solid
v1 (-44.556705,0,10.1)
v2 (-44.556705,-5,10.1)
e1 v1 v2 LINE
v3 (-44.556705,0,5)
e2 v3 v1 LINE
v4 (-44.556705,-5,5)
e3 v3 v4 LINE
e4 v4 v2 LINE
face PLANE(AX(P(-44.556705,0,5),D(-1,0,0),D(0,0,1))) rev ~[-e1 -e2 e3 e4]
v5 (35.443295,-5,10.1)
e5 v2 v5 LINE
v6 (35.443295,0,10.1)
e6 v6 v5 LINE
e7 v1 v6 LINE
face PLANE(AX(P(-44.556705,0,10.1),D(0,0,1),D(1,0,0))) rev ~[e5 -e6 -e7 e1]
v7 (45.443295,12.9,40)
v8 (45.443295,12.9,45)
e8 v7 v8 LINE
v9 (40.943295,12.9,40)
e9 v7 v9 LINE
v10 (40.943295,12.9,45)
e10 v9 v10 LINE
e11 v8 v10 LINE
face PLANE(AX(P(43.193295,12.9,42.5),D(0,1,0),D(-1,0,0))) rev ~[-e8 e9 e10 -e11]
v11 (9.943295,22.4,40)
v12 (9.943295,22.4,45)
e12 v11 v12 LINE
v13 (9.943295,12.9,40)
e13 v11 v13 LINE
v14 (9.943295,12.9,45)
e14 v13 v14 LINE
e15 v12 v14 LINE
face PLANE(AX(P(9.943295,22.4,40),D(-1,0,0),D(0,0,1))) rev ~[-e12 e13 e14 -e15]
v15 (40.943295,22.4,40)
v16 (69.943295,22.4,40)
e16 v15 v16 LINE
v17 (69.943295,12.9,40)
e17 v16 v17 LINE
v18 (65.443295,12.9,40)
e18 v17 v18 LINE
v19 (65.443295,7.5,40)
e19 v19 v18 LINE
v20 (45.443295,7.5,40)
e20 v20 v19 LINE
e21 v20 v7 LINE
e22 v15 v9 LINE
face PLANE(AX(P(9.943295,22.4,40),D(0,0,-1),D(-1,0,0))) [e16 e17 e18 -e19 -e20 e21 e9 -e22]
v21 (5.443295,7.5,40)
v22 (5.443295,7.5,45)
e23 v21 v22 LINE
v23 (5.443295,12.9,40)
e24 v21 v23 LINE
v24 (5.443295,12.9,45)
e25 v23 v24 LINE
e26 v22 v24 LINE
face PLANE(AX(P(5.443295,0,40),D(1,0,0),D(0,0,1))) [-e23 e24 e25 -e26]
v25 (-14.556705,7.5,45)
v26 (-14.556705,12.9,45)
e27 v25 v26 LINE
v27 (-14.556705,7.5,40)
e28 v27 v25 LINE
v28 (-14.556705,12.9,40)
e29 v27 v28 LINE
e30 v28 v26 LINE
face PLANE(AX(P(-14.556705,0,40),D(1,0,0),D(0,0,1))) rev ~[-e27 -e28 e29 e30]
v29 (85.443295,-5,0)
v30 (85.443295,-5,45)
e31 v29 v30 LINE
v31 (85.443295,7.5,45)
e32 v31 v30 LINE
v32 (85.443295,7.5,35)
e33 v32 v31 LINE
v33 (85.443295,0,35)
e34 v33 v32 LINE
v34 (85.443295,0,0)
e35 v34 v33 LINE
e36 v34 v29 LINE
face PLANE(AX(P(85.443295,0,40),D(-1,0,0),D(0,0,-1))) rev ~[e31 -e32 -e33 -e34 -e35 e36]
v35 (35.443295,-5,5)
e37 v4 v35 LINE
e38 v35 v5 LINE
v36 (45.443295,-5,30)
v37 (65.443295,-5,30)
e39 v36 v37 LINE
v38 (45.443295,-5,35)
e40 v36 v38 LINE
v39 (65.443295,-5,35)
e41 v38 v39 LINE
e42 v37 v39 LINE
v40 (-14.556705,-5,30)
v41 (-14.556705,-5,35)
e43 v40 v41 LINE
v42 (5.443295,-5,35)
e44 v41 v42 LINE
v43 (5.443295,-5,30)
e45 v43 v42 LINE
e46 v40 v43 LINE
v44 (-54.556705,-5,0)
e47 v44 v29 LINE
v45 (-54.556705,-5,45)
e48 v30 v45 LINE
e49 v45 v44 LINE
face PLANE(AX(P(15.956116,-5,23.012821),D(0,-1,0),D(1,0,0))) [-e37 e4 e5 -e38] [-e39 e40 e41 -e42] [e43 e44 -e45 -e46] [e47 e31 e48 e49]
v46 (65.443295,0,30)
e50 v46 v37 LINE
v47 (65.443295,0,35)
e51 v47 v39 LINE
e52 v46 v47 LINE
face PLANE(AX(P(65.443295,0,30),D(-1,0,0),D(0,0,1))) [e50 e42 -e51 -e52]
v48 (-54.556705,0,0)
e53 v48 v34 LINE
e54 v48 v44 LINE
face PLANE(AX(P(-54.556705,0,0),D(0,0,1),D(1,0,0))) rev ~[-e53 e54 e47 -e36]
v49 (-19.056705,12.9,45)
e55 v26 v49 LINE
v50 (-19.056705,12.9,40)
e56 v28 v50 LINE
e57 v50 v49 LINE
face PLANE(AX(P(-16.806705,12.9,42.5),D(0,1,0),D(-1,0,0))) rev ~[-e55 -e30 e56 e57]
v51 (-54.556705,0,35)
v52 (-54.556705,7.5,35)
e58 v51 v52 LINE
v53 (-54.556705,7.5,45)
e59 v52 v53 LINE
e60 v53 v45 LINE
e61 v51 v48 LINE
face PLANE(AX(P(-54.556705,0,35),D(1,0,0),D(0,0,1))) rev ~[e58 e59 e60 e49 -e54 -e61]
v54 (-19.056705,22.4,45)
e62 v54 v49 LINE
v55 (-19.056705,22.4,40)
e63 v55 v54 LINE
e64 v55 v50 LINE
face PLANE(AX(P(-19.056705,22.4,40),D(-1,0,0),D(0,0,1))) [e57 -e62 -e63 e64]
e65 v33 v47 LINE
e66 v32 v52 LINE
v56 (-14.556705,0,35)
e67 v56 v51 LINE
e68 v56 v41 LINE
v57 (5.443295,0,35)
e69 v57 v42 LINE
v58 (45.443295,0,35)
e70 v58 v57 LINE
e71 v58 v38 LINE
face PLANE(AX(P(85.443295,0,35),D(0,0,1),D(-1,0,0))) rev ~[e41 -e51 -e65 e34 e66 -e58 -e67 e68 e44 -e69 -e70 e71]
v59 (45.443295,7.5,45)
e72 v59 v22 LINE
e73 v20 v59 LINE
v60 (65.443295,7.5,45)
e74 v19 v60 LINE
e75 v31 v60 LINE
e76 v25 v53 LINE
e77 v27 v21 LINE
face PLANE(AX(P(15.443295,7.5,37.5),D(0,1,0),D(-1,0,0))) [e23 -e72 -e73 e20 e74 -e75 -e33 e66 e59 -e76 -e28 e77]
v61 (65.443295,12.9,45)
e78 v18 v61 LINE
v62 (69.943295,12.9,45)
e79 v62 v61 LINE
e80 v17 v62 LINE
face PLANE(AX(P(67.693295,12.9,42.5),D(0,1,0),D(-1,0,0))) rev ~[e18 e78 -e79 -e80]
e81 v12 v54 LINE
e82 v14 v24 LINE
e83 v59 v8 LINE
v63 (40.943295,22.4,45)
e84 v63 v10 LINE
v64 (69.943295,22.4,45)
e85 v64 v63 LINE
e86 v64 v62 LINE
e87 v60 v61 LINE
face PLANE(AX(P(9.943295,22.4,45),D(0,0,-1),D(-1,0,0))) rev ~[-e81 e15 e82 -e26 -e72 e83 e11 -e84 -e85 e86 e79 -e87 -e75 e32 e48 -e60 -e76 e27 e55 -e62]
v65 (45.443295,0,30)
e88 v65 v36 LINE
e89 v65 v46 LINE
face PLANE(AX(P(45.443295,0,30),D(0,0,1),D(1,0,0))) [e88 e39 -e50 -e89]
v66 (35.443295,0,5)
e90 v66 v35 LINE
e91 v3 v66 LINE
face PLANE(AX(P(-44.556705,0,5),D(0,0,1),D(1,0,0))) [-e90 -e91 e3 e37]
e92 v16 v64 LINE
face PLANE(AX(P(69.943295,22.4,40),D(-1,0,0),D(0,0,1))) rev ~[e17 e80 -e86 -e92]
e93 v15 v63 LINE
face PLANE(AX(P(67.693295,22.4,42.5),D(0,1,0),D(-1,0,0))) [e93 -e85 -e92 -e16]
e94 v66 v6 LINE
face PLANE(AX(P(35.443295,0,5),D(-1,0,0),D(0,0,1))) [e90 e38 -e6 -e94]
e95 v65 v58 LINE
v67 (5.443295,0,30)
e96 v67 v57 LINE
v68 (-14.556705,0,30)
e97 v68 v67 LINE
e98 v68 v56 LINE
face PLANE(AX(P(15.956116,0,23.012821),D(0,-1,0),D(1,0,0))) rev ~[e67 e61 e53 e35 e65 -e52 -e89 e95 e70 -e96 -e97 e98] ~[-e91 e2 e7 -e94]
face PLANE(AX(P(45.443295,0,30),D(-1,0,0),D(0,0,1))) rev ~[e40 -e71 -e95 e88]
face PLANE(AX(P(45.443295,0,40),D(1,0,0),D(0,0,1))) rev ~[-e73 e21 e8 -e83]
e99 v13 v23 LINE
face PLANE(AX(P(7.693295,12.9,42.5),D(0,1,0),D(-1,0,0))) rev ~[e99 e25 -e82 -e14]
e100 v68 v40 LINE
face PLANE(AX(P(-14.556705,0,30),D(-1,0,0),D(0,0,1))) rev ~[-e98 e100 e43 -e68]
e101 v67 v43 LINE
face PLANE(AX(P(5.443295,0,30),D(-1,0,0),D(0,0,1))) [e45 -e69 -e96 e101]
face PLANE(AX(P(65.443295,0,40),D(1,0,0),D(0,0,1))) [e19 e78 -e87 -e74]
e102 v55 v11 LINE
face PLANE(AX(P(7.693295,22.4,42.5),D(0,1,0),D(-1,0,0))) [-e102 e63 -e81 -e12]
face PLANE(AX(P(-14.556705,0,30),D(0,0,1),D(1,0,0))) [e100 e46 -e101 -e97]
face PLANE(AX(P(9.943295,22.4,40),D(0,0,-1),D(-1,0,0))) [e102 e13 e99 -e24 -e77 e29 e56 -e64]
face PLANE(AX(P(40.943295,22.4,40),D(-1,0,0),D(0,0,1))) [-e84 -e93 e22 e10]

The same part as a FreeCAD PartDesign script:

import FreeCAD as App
import Part
import Sketcher
from FreeCAD import Vector
Q = App.Units.Quantity

doc = App.newDocument("Part")
body = doc.addObject("PartDesign::Body", "Body")

# Sketch on XZ plane
sketch1 = body.newObject("Sketcher::SketchObject", "Sketch")
sketch1.AttachmentSupport = (doc.getObject("XZ_Plane"), [""])
sketch1.MapMode = "FlatFace"
sketch1.addGeometry([
    Part.LineSegment(Vector(-55, 45, 0), Vector(-55, 0, 0)),  # 0
    Part.LineSegment(Vector(-55, 0, 0), Vector(85, 0, 0)),  # 1
    Part.LineSegment(Vector(85, 0, 0), Vector(85, 45, 0)),  # 2
    Part.LineSegment(Vector(85, 45, 0), Vector(-55, 45, 0)),  # 3
    Part.LineSegment(Vector(35, 5, 0), Vector(-45, 5, 0)),  # 4
    Part.LineSegment(Vector(-45, 5, 0), Vector(-45, 10, 0)),  # 5
    Part.LineSegment(Vector(-45, 10, 0), Vector(35, 10, 0)),  # 6
    Part.LineSegment(Vector(35, 10, 0), Vector(35, 5, 0)),  # 7
    Part.LineSegment(Vector(5, 30, 0), Vector(-15, 30, 0)),  # 8
    Part.LineSegment(Vector(-15, 30, 0), Vector(-15, 35, 0)),  # 9
    Part.LineSegment(Vector(-15, 35, 0), Vector(5, 35, 0)),  # 10
    Part.LineSegment(Vector(5, 35, 0), Vector(5, 30, 0)),  # 11
    Part.LineSegment(Vector(65, 30, 0), Vector(45, 30, 0)),  # 12
    Part.LineSegment(Vector(45, 30, 0), Vector(45, 35, 0)),  # 13
    Part.LineSegment(Vector(45, 35, 0), Vector(65, 35, 0)),  # 14
    Part.LineSegment(Vector(65, 35, 0), Vector(65, 30, 0)),  # 15
], False)
sketch1.addConstraint([
    Sketcher.Constraint("Coincident", 0, 2, 1, 1),
    Sketcher.Constraint("Coincident", 1, 2, 2, 1),
    Sketcher.Constraint("Coincident", 2, 2, 3, 1),
    Sketcher.Constraint("Coincident", 3, 2, 0, 1),
    Sketcher.Constraint("Coincident", 4, 2, 5, 1),
    Sketcher.Constraint("Coincident", 5, 2, 6, 1),
    Sketcher.Constraint("Coincident", 6, 2, 7, 1),
    Sketcher.Constraint("Coincident", 7, 2, 4, 1),
    Sketcher.Constraint("Coincident", 8, 2, 9, 1),
    Sketcher.Constraint("Coincident", 9, 2, 10, 1),
    Sketcher.Constraint("Coincident", 10, 2, 11, 1),
    Sketcher.Constraint("Coincident", 11, 2, 8, 1),
    Sketcher.Constraint("Coincident", 12, 2, 13, 1),
    Sketcher.Constraint("Coincident", 13, 2, 14, 1),
    Sketcher.Constraint("Coincident", 14, 2, 15, 1),
    Sketcher.Constraint("Coincident", 15, 2, 12, 1),
    Sketcher.Constraint("Vertical", 0),
    Sketcher.Constraint("Horizontal", 1),
    Sketcher.Constraint("Vertical", 2),
    Sketcher.Constraint("Horizontal", 3),
    Sketcher.Constraint("Horizontal", 4),
    Sketcher.Constraint("Vertical", 5),
    Sketcher.Constraint("Horizontal", 6),
    Sketcher.Constraint("Vertical", 7),
    Sketcher.Constraint("Horizontal", 8),
    Sketcher.Constraint("Vertical", 9),
    Sketcher.Constraint("Horizontal", 10),
    Sketcher.Constraint("Vertical", 11),
    Sketcher.Constraint("Horizontal", 12),
    Sketcher.Constraint("Vertical", 13),
    Sketcher.Constraint("Horizontal", 14),
    Sketcher.Constraint("Vertical", 15),
    Sketcher.Constraint("PointOnObject", 0, 2, -1),
    Sketcher.Constraint("Horizontal", 11, 2, 12, 2),
    Sketcher.Constraint("Horizontal", 10, 2, 13, 2),
    Sketcher.Constraint("Equal", 10, 12),
    Sketcher.Constraint("DistanceX", 1, 1, 1, 2, Q("140 mm")),
    Sketcher.Constraint("DistanceX", 4, 2, 4, 1, Q("80 mm")),
    Sketcher.Constraint("DistanceX", 8, 2, 8, 1, Q("20 mm")),
    Sketcher.Constraint("DistanceY", 0, 2, 0, 1, Q("45 mm")),
    Sketcher.Constraint("DistanceY", 9, 1, 9, 2, Q("5 mm")),
    Sketcher.Constraint("DistanceY", 5, 1, 5, 2, Q("5.1 mm")),
    Sketcher.Constraint("DistanceY", -1, 1, 4, 2, Q("5 mm")),
    Sketcher.Constraint("DistanceY", -1, 1, 8, 2, Q("30 mm")),
    Sketcher.Constraint("DistanceX", 0, 2, 4, 2, Q("10 mm")),
    Sketcher.Constraint("DistanceX", 5, 2, 8, 2, Q("30 mm")),
    Sketcher.Constraint("DistanceX", 6, 2, 12, 2, Q("10 mm")),
    Sketcher.Constraint("DistanceX", 0, 2, -1, 1, Q("54.556705 mm")),
])
pad1 = body.newObject("PartDesign::Pad", "Pad")
pad1.Profile = sketch1
pad1.Length = 5

# Sketch on XZ plane
sketch2 = body.newObject("Sketcher::SketchObject", "Sketch001")
sketch2.AttachmentSupport = (doc.getObject("XZ_Plane"), [""])
sketch2.MapMode = "FlatFace"
sketch2.addGeometry([
    Part.LineSegment(Vector(85, 45, 0), Vector(85, 40, 0)),  # 0
    Part.LineSegment(Vector(85, 40, 0), Vector(65, 40, 0)),  # 1
    Part.LineSegment(Vector(65, 40, 0), Vector(65, 45, 0)),  # 2
    Part.LineSegment(Vector(65, 45, 0), Vector(85, 45, 0)),  # 3
    Part.LineSegment(Vector(45, 45, 0), Vector(45, 40, 0)),  # 4
    Part.LineSegment(Vector(45, 40, 0), Vector(5, 40, 0)),  # 5
    Part.LineSegment(Vector(5, 40, 0), Vector(5, 45, 0)),  # 6
    Part.LineSegment(Vector(5, 45, 0), Vector(45, 45, 0)),  # 7
    Part.LineSegment(Vector(-15, 45, 0), Vector(-15, 40, 0)),  # 8
    Part.LineSegment(Vector(-15, 40, 0), Vector(-55, 40, 0)),  # 9
    Part.LineSegment(Vector(-55, 40, 0), Vector(-55, 45, 0)),  # 10
    Part.LineSegment(Vector(-55, 45, 0), Vector(-15, 45, 0)),  # 11
], False)
sketch2.addConstraint([
    Sketcher.Constraint("Coincident", 0, 2, 1, 1),
    Sketcher.Constraint("Coincident", 1, 2, 2, 1),
    Sketcher.Constraint("Coincident", 2, 2, 3, 1),
    Sketcher.Constraint("Coincident", 3, 2, 0, 1),
    Sketcher.Constraint("Coincident", 4, 2, 5, 1),
    Sketcher.Constraint("Coincident", 5, 2, 6, 1),
    Sketcher.Constraint("Coincident", 6, 2, 7, 1),
    Sketcher.Constraint("Coincident", 7, 2, 4, 1),
    Sketcher.Constraint("Coincident", 8, 2, 9, 1),
    Sketcher.Constraint("Coincident", 9, 2, 10, 1),
    Sketcher.Constraint("Coincident", 10, 2, 11, 1),
    Sketcher.Constraint("Coincident", 11, 2, 8, 1),
    Sketcher.Constraint("Vertical", 0),
    Sketcher.Constraint("Horizontal", 1),
    Sketcher.Constraint("Vertical", 2),
    Sketcher.Constraint("Horizontal", 3),
    Sketcher.Constraint("Vertical", 4),
    Sketcher.Constraint("Horizontal", 5),
    Sketcher.Constraint("Vertical", 6),
    Sketcher.Constraint("Horizontal", 7),
    Sketcher.Constraint("Vertical", 8),
    Sketcher.Constraint("Horizontal", 9),
    Sketcher.Constraint("Vertical", 10),
    Sketcher.Constraint("Horizontal", 11),
    Sketcher.Constraint("Horizontal", 1, 2, 4, 2),
    Sketcher.Constraint("Horizontal", 3, 2, 6, 2),
    Sketcher.Constraint("Horizontal", 5, 2, 8, 2),
    Sketcher.Constraint("Horizontal", 7, 2, 10, 2),
    Sketcher.Constraint("Equal", 7, 9),
    Sketcher.Constraint("DistanceX", 1, 2, 1, 1, Q("20 mm")),
    Sketcher.Constraint("DistanceX", 5, 2, 5, 1, Q("40 mm")),
    Sketcher.Constraint("DistanceY", 0, 2, 0, 1, Q("5 mm")),
    Sketcher.Constraint("DistanceY", -1, 1, 0, 2, Q("40 mm")),
    Sketcher.Constraint("DistanceX", 4, 2, 1, 2, Q("20 mm")),
    Sketcher.Constraint("DistanceX", 8, 2, 5, 2, Q("20 mm")),
    Sketcher.Constraint("DistanceX", -1, 1, 0, 2, Q("85.443295 mm")),
])
pad2 = body.newObject("PartDesign::Pad", "Pad001")
pad2.Profile = sketch2
pad2.Length = 7.5
pad2.Reversed = True

# Sketch on XZ plane
sketch3 = body.newObject("Sketcher::SketchObject", "Sketch002")
sketch3.AttachmentSupport = (doc.getObject("XZ_Plane"), [""])
sketch3.MapMode = "FlatFace"
sketch3.addGeometry([
    Part.LineSegment(Vector(65, 45, 0), Vector(65, 40, 0)),  # 0
    Part.LineSegment(Vector(65, 40, 0), Vector(45, 40, 0)),  # 1
    Part.LineSegment(Vector(45, 40, 0), Vector(45, 45, 0)),  # 2
    Part.LineSegment(Vector(45, 45, 0), Vector(65, 45, 0)),  # 3
    Part.LineSegment(Vector(5, 45, 0), Vector(5, 40, 0)),  # 4
    Part.LineSegment(Vector(5, 40, 0), Vector(-15, 40, 0)),  # 5
    Part.LineSegment(Vector(-15, 40, 0), Vector(-15, 45, 0)),  # 6
    Part.LineSegment(Vector(-15, 45, 0), Vector(5, 45, 0)),  # 7
], False)
sketch3.addConstraint([
    Sketcher.Constraint("Coincident", 0, 2, 1, 1),
    Sketcher.Constraint("Coincident", 1, 2, 2, 1),
    Sketcher.Constraint("Coincident", 2, 2, 3, 1),
    Sketcher.Constraint("Coincident", 3, 2, 0, 1),
    Sketcher.Constraint("Coincident", 4, 2, 5, 1),
    Sketcher.Constraint("Coincident", 5, 2, 6, 1),
    Sketcher.Constraint("Coincident", 6, 2, 7, 1),
    Sketcher.Constraint("Coincident", 7, 2, 4, 1),
    Sketcher.Constraint("Vertical", 0),
    Sketcher.Constraint("Horizontal", 1),
    Sketcher.Constraint("Vertical", 2),
    Sketcher.Constraint("Horizontal", 3),
    Sketcher.Constraint("Vertical", 4),
    Sketcher.Constraint("Horizontal", 5),
    Sketcher.Constraint("Vertical", 6),
    Sketcher.Constraint("Horizontal", 7),
    Sketcher.Constraint("Horizontal", 1, 2, 4, 2),
    Sketcher.Constraint("Horizontal", 3, 2, 6, 2),
    Sketcher.Constraint("Equal", 3, 5),
    Sketcher.Constraint("DistanceX", 1, 2, 1, 1, Q("20 mm")),
    Sketcher.Constraint("DistanceY", 0, 2, 0, 1, Q("5 mm")),
    Sketcher.Constraint("DistanceY", -1, 1, 0, 2, Q("40 mm")),
    Sketcher.Constraint("DistanceX", 4, 2, 1, 2, Q("40 mm")),
    Sketcher.Constraint("DistanceX", -1, 1, 0, 2, Q("65.443295 mm")),
])
pad3 = body.newObject("PartDesign::Pad", "Pad002")
pad3.Profile = sketch3
pad3.Length = 22.4
pad3.Reversed = True

# Sketch on XZ plane
sketch4 = body.newObject("Sketcher::SketchObject", "Sketch003")
sketch4.AttachmentSupport = (doc.getObject("XZ_Plane"), [""])
sketch4.MapMode = "FlatFace"
sketch4.AttachmentOffset = App.Placement(Vector(0, 0, -22.4), App.Rotation())
sketch4.addGeometry([
    Part.LineSegment(Vector(69.9, 45, 0), Vector(69.9, 40, 0)),  # 0
    Part.LineSegment(Vector(69.9, 40, 0), Vector(65.4, 40, 0)),  # 1
    Part.LineSegment(Vector(65.4, 40, 0), Vector(65.4, 45, 0)),  # 2
    Part.LineSegment(Vector(65.4, 45, 0), Vector(69.9, 45, 0)),  # 3
    Part.LineSegment(Vector(45.4, 45, 0), Vector(45.4, 40, 0)),  # 4
    Part.LineSegment(Vector(45.4, 40, 0), Vector(40.9, 40, 0)),  # 5
    Part.LineSegment(Vector(40.9, 40, 0), Vector(40.9, 45, 0)),  # 6
    Part.LineSegment(Vector(40.9, 45, 0), Vector(45.4, 45, 0)),  # 7
], False)
sketch4.addConstraint([
    Sketcher.Constraint("Coincident", 0, 2, 1, 1),
    Sketcher.Constraint("Coincident", 1, 2, 2, 1),
    Sketcher.Constraint("Coincident", 2, 2, 3, 1),
    Sketcher.Constraint("Coincident", 3, 2, 0, 1),
    Sketcher.Constraint("Coincident", 4, 2, 5, 1),
    Sketcher.Constraint("Coincident", 5, 2, 6, 1),
    Sketcher.Constraint("Coincident", 6, 2, 7, 1),
    Sketcher.Constraint("Coincident", 7, 2, 4, 1),
    Sketcher.Constraint("Vertical", 0),
    Sketcher.Constraint("Horizontal", 1),
    Sketcher.Constraint("Vertical", 2),
    Sketcher.Constraint("Horizontal", 3),
    Sketcher.Constraint("Vertical", 4),
    Sketcher.Constraint("Horizontal", 5),
    Sketcher.Constraint("Vertical", 6),
    Sketcher.Constraint("Horizontal", 7),
    Sketcher.Constraint("Horizontal", 1, 2, 4, 2),
    Sketcher.Constraint("Horizontal", 3, 2, 6, 2),
    Sketcher.Constraint("Equal", 3, 5),
    Sketcher.Constraint("DistanceY", 0, 2, 0, 1, Q("5 mm")),
    Sketcher.Constraint("DistanceX", 1, 2, 1, 1, Q("4.5 mm")),
    Sketcher.Constraint("DistanceY", -1, 1, 0, 2, Q("40 mm")),
    Sketcher.Constraint("DistanceX", 4, 2, 1, 2, Q("20 mm")),
    Sketcher.Constraint("DistanceX", -1, 1, 0, 2, Q("69.943295 mm")),
])
pad4 = body.newObject("PartDesign::Pad", "Pad003")
pad4.Profile = sketch4
pad4.Length = 9.5

# Sketch on XZ plane
sketch5 = body.newObject("Sketcher::SketchObject", "Sketch004")
sketch5.AttachmentSupport = (doc.getObject("XZ_Plane"), [""])
sketch5.MapMode = "FlatFace"
sketch5.AttachmentOffset = App.Placement(Vector(0, 0, -22.4), App.Rotation())
sketch5.addGeometry([
    Part.LineSegment(Vector(9.9, 45, 0), Vector(9.9, 40, 0)),  # 0
    Part.LineSegment(Vector(9.9, 40, 0), Vector(5.4, 40, 0)),  # 1
    Part.LineSegment(Vector(5.4, 40, 0), Vector(5.4, 45, 0)),  # 2
    Part.LineSegment(Vector(5.4, 45, 0), Vector(9.9, 45, 0)),  # 3
    Part.LineSegment(Vector(-14.6, 45, 0), Vector(-14.6, 40, 0)),  # 4
    Part.LineSegment(Vector(-14.6, 40, 0), Vector(-19.1, 40, 0)),  # 5
    Part.LineSegment(Vector(-19.1, 40, 0), Vector(-19.1, 45, 0)),  # 6
    Part.LineSegment(Vector(-19.1, 45, 0), Vector(-14.6, 45, 0)),  # 7
], False)
sketch5.addConstraint([
    Sketcher.Constraint("Coincident", 0, 2, 1, 1),
    Sketcher.Constraint("Coincident", 1, 2, 2, 1),
    Sketcher.Constraint("Coincident", 2, 2, 3, 1),
    Sketcher.Constraint("Coincident", 3, 2, 0, 1),
    Sketcher.Constraint("Coincident", 4, 2, 5, 1),
    Sketcher.Constraint("Coincident", 5, 2, 6, 1),
    Sketcher.Constraint("Coincident", 6, 2, 7, 1),
    Sketcher.Constraint("Coincident", 7, 2, 4, 1),
    Sketcher.Constraint("Vertical", 0),
    Sketcher.Constraint("Horizontal", 1),
    Sketcher.Constraint("Vertical", 2),
    Sketcher.Constraint("Horizontal", 3),
    Sketcher.Constraint("Vertical", 4),
    Sketcher.Constraint("Horizontal", 5),
    Sketcher.Constraint("Vertical", 6),
    Sketcher.Constraint("Horizontal", 7),
    Sketcher.Constraint("Horizontal", 1, 2, 4, 2),
    Sketcher.Constraint("Horizontal", 3, 2, 6, 2),
    Sketcher.Constraint("Equal", 3, 5),
    Sketcher.Constraint("DistanceY", 0, 2, 0, 1, Q("5 mm")),
    Sketcher.Constraint("DistanceX", 1, 2, 1, 1, Q("4.5 mm")),
    Sketcher.Constraint("DistanceY", -1, 1, 0, 2, Q("40 mm")),
    Sketcher.Constraint("DistanceX", 4, 2, 1, 2, Q("20 mm")),
    Sketcher.Constraint("DistanceX", -1, 1, 0, 2, Q("9.943295 mm")),
])
pad5 = body.newObject("PartDesign::Pad", "Pad004")
pad5.Profile = sketch5
pad5.Length = 9.5

# Sketch on XZ plane
sketch6 = body.newObject("Sketcher::SketchObject", "Sketch005")
sketch6.AttachmentSupport = (doc.getObject("XZ_Plane"), [""])
sketch6.MapMode = "FlatFace"
sketch6.addGeometry([
    Part.LineSegment(Vector(85, 40, 0), Vector(85, 35, 0)),
    Part.LineSegment(Vector(85, 35, 0), Vector(-55, 35, 0)),
    Part.LineSegment(Vector(-55, 35, 0), Vector(-55, 40, 0)),
    Part.LineSegment(Vector(-55, 40, 0), Vector(85, 40, 0)),
], False)
sketch6.addConstraint([
    Sketcher.Constraint("Coincident", 0, 2, 1, 1),
    Sketcher.Constraint("Coincident", 1, 2, 2, 1),
    Sketcher.Constraint("Coincident", 2, 2, 3, 1),
    Sketcher.Constraint("Coincident", 3, 2, 0, 1),
    Sketcher.Constraint("Vertical", 0),
    Sketcher.Constraint("Horizontal", 1),
    Sketcher.Constraint("Vertical", 2),
    Sketcher.Constraint("Horizontal", 3),
    Sketcher.Constraint("DistanceX", 1, 2, 1, 1, Q("140 mm")),
    Sketcher.Constraint("DistanceY", 0, 2, 0, 1, Q("5 mm")),
    Sketcher.Constraint("DistanceY", -1, 1, 0, 2, Q("35 mm")),
    Sketcher.Constraint("DistanceX", -1, 1, 0, 2, Q("85.443295 mm")),
])
pad6 = body.newObject("PartDesign::Pad", "Pad005")
pad6.Profile = sketch6
pad6.Length = 7.5
pad6.Reversed = True

doc.recompute()
